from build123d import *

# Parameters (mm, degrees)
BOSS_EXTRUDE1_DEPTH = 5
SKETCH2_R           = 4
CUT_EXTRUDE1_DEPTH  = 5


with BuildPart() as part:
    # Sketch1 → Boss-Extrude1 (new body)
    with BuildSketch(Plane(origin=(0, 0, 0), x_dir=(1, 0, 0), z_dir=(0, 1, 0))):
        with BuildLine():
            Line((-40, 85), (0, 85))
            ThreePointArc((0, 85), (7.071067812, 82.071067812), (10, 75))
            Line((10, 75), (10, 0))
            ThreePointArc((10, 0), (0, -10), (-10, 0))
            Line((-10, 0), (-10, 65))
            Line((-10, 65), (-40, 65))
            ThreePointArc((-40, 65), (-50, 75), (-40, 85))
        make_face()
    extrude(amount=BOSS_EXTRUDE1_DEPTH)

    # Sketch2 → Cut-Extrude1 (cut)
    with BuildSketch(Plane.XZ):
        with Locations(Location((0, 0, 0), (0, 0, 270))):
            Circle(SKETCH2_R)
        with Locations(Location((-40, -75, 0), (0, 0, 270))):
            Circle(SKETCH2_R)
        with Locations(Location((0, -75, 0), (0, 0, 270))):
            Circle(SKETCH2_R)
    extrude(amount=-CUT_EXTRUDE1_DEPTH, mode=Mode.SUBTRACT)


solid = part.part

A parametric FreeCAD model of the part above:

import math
import FreeCAD as App
import Part
import Sketcher
from FreeCAD import Vector

doc = App.newDocument("Part")
body = doc.addObject("PartDesign::Body", "Body")

sketch1 = body.newObject("Sketcher::SketchObject", "Sketch")
sketch1.AttachmentSupport = (doc.getObject("XZ_Plane"), [""])
sketch1.MapMode = "FlatFace"
sketch1.addGeometry([
    Part.LineSegment(Vector(0, -85, 0), Vector(-40, -85, 0)),
    Part.ArcOfCircle(Part.Circle(Vector(-40, -75, 0), Vector(0, 0, 1), 10), math.radians(90), math.radians(270)),
    Part.LineSegment(Vector(-40, -65, 0), Vector(-10, -65, 0)),
    Part.LineSegment(Vector(-10, -65, 0), Vector(-10, 0, 0)),
    Part.ArcOfCircle(Part.Circle(Vector(0, 0, 0), Vector(0, 0, 1), 10), math.radians(0), math.radians(180)),
    Part.LineSegment(Vector(10, 0, 0), Vector(10, -75, 0)),
    Part.ArcOfCircle(Part.Circle(Vector(0, -75, 0), Vector(0, 0, 1), 10), math.radians(-90), math.radians(0)),
], False)
sketch1.addConstraint([
    Sketcher.Constraint("Tangent", 0, 2, 1, 2),
    Sketcher.Constraint("Tangent", 1, 1, 2, 1),
    Sketcher.Constraint("Coincident", 2, 2, 3, 1),
    Sketcher.Constraint("Tangent", 3, 2, 4, 2),
    Sketcher.Constraint("Tangent", 4, 1, 5, 1),
    Sketcher.Constraint("Tangent", 5, 2, 6, 2),
    Sketcher.Constraint("Tangent", 6, 1, 0, 1),
    Sketcher.Constraint("Horizontal", 0),
    Sketcher.Constraint("Horizontal", 2),
    Sketcher.Constraint("Vertical", 3),
    Sketcher.Constraint("Vertical", 5),
    Sketcher.Constraint("Coincident", 4, 3, -1, 1),
    Sketcher.Constraint("Equal", 1, 4),
    Sketcher.Constraint("Equal", 4, 6),
    Sketcher.Constraint("Radius", 1, 10.0),
    Sketcher.Constraint("DistanceX", 0, 2, 0, 1, 40.0),
    Sketcher.Constraint("DistanceY", 3, 1, 3, 2, 65.0),
])
pad1 = body.newObject("PartDesign::Pad", "Pad")
pad1.Profile = sketch1
pad1.Length = 5
pad1.Reversed = True

sketch2 = body.newObject("Sketcher::SketchObject", "Sketch001")
sketch2.AttachmentSupport = (doc.getObject("XZ_Plane"), [""])
sketch2.MapMode = "FlatFace"
sketch2.addGeometry([
    Part.Circle(Vector(0, 0, 0), Vector(0, 0, 1), 4),
    Part.Circle(Vector(-40, -75, 0), Vector(0, 0, 1), 4),
    Part.Circle(Vector(0, -75, 0), Vector(0, 0, 1), 4),
], False)
sketch2.addConstraint([
    Sketcher.Constraint("Coincident", 0, 3, -1, 1),
    Sketcher.Constraint("Equal", 0, 1),
    Sketcher.Constraint("Equal", 1, 2),
    Sketcher.Constraint("PointOnObject", 2, 3, -2),
    Sketcher.Constraint("Horizontal", 1, 3, 2, 3),
    Sketcher.Constraint("Diameter", 0, 8.0),
    Sketcher.Constraint("DistanceX", 1, 3, -1, 1, 40.0),
    Sketcher.Constraint("DistanceY", 1, 3, -1, 1, 75.0),
])
pocket1 = body.newObject("PartDesign::Pocket", "Pocket")
pocket1.Profile = sketch2
pocket1.Length = 5

doc.recompute()
